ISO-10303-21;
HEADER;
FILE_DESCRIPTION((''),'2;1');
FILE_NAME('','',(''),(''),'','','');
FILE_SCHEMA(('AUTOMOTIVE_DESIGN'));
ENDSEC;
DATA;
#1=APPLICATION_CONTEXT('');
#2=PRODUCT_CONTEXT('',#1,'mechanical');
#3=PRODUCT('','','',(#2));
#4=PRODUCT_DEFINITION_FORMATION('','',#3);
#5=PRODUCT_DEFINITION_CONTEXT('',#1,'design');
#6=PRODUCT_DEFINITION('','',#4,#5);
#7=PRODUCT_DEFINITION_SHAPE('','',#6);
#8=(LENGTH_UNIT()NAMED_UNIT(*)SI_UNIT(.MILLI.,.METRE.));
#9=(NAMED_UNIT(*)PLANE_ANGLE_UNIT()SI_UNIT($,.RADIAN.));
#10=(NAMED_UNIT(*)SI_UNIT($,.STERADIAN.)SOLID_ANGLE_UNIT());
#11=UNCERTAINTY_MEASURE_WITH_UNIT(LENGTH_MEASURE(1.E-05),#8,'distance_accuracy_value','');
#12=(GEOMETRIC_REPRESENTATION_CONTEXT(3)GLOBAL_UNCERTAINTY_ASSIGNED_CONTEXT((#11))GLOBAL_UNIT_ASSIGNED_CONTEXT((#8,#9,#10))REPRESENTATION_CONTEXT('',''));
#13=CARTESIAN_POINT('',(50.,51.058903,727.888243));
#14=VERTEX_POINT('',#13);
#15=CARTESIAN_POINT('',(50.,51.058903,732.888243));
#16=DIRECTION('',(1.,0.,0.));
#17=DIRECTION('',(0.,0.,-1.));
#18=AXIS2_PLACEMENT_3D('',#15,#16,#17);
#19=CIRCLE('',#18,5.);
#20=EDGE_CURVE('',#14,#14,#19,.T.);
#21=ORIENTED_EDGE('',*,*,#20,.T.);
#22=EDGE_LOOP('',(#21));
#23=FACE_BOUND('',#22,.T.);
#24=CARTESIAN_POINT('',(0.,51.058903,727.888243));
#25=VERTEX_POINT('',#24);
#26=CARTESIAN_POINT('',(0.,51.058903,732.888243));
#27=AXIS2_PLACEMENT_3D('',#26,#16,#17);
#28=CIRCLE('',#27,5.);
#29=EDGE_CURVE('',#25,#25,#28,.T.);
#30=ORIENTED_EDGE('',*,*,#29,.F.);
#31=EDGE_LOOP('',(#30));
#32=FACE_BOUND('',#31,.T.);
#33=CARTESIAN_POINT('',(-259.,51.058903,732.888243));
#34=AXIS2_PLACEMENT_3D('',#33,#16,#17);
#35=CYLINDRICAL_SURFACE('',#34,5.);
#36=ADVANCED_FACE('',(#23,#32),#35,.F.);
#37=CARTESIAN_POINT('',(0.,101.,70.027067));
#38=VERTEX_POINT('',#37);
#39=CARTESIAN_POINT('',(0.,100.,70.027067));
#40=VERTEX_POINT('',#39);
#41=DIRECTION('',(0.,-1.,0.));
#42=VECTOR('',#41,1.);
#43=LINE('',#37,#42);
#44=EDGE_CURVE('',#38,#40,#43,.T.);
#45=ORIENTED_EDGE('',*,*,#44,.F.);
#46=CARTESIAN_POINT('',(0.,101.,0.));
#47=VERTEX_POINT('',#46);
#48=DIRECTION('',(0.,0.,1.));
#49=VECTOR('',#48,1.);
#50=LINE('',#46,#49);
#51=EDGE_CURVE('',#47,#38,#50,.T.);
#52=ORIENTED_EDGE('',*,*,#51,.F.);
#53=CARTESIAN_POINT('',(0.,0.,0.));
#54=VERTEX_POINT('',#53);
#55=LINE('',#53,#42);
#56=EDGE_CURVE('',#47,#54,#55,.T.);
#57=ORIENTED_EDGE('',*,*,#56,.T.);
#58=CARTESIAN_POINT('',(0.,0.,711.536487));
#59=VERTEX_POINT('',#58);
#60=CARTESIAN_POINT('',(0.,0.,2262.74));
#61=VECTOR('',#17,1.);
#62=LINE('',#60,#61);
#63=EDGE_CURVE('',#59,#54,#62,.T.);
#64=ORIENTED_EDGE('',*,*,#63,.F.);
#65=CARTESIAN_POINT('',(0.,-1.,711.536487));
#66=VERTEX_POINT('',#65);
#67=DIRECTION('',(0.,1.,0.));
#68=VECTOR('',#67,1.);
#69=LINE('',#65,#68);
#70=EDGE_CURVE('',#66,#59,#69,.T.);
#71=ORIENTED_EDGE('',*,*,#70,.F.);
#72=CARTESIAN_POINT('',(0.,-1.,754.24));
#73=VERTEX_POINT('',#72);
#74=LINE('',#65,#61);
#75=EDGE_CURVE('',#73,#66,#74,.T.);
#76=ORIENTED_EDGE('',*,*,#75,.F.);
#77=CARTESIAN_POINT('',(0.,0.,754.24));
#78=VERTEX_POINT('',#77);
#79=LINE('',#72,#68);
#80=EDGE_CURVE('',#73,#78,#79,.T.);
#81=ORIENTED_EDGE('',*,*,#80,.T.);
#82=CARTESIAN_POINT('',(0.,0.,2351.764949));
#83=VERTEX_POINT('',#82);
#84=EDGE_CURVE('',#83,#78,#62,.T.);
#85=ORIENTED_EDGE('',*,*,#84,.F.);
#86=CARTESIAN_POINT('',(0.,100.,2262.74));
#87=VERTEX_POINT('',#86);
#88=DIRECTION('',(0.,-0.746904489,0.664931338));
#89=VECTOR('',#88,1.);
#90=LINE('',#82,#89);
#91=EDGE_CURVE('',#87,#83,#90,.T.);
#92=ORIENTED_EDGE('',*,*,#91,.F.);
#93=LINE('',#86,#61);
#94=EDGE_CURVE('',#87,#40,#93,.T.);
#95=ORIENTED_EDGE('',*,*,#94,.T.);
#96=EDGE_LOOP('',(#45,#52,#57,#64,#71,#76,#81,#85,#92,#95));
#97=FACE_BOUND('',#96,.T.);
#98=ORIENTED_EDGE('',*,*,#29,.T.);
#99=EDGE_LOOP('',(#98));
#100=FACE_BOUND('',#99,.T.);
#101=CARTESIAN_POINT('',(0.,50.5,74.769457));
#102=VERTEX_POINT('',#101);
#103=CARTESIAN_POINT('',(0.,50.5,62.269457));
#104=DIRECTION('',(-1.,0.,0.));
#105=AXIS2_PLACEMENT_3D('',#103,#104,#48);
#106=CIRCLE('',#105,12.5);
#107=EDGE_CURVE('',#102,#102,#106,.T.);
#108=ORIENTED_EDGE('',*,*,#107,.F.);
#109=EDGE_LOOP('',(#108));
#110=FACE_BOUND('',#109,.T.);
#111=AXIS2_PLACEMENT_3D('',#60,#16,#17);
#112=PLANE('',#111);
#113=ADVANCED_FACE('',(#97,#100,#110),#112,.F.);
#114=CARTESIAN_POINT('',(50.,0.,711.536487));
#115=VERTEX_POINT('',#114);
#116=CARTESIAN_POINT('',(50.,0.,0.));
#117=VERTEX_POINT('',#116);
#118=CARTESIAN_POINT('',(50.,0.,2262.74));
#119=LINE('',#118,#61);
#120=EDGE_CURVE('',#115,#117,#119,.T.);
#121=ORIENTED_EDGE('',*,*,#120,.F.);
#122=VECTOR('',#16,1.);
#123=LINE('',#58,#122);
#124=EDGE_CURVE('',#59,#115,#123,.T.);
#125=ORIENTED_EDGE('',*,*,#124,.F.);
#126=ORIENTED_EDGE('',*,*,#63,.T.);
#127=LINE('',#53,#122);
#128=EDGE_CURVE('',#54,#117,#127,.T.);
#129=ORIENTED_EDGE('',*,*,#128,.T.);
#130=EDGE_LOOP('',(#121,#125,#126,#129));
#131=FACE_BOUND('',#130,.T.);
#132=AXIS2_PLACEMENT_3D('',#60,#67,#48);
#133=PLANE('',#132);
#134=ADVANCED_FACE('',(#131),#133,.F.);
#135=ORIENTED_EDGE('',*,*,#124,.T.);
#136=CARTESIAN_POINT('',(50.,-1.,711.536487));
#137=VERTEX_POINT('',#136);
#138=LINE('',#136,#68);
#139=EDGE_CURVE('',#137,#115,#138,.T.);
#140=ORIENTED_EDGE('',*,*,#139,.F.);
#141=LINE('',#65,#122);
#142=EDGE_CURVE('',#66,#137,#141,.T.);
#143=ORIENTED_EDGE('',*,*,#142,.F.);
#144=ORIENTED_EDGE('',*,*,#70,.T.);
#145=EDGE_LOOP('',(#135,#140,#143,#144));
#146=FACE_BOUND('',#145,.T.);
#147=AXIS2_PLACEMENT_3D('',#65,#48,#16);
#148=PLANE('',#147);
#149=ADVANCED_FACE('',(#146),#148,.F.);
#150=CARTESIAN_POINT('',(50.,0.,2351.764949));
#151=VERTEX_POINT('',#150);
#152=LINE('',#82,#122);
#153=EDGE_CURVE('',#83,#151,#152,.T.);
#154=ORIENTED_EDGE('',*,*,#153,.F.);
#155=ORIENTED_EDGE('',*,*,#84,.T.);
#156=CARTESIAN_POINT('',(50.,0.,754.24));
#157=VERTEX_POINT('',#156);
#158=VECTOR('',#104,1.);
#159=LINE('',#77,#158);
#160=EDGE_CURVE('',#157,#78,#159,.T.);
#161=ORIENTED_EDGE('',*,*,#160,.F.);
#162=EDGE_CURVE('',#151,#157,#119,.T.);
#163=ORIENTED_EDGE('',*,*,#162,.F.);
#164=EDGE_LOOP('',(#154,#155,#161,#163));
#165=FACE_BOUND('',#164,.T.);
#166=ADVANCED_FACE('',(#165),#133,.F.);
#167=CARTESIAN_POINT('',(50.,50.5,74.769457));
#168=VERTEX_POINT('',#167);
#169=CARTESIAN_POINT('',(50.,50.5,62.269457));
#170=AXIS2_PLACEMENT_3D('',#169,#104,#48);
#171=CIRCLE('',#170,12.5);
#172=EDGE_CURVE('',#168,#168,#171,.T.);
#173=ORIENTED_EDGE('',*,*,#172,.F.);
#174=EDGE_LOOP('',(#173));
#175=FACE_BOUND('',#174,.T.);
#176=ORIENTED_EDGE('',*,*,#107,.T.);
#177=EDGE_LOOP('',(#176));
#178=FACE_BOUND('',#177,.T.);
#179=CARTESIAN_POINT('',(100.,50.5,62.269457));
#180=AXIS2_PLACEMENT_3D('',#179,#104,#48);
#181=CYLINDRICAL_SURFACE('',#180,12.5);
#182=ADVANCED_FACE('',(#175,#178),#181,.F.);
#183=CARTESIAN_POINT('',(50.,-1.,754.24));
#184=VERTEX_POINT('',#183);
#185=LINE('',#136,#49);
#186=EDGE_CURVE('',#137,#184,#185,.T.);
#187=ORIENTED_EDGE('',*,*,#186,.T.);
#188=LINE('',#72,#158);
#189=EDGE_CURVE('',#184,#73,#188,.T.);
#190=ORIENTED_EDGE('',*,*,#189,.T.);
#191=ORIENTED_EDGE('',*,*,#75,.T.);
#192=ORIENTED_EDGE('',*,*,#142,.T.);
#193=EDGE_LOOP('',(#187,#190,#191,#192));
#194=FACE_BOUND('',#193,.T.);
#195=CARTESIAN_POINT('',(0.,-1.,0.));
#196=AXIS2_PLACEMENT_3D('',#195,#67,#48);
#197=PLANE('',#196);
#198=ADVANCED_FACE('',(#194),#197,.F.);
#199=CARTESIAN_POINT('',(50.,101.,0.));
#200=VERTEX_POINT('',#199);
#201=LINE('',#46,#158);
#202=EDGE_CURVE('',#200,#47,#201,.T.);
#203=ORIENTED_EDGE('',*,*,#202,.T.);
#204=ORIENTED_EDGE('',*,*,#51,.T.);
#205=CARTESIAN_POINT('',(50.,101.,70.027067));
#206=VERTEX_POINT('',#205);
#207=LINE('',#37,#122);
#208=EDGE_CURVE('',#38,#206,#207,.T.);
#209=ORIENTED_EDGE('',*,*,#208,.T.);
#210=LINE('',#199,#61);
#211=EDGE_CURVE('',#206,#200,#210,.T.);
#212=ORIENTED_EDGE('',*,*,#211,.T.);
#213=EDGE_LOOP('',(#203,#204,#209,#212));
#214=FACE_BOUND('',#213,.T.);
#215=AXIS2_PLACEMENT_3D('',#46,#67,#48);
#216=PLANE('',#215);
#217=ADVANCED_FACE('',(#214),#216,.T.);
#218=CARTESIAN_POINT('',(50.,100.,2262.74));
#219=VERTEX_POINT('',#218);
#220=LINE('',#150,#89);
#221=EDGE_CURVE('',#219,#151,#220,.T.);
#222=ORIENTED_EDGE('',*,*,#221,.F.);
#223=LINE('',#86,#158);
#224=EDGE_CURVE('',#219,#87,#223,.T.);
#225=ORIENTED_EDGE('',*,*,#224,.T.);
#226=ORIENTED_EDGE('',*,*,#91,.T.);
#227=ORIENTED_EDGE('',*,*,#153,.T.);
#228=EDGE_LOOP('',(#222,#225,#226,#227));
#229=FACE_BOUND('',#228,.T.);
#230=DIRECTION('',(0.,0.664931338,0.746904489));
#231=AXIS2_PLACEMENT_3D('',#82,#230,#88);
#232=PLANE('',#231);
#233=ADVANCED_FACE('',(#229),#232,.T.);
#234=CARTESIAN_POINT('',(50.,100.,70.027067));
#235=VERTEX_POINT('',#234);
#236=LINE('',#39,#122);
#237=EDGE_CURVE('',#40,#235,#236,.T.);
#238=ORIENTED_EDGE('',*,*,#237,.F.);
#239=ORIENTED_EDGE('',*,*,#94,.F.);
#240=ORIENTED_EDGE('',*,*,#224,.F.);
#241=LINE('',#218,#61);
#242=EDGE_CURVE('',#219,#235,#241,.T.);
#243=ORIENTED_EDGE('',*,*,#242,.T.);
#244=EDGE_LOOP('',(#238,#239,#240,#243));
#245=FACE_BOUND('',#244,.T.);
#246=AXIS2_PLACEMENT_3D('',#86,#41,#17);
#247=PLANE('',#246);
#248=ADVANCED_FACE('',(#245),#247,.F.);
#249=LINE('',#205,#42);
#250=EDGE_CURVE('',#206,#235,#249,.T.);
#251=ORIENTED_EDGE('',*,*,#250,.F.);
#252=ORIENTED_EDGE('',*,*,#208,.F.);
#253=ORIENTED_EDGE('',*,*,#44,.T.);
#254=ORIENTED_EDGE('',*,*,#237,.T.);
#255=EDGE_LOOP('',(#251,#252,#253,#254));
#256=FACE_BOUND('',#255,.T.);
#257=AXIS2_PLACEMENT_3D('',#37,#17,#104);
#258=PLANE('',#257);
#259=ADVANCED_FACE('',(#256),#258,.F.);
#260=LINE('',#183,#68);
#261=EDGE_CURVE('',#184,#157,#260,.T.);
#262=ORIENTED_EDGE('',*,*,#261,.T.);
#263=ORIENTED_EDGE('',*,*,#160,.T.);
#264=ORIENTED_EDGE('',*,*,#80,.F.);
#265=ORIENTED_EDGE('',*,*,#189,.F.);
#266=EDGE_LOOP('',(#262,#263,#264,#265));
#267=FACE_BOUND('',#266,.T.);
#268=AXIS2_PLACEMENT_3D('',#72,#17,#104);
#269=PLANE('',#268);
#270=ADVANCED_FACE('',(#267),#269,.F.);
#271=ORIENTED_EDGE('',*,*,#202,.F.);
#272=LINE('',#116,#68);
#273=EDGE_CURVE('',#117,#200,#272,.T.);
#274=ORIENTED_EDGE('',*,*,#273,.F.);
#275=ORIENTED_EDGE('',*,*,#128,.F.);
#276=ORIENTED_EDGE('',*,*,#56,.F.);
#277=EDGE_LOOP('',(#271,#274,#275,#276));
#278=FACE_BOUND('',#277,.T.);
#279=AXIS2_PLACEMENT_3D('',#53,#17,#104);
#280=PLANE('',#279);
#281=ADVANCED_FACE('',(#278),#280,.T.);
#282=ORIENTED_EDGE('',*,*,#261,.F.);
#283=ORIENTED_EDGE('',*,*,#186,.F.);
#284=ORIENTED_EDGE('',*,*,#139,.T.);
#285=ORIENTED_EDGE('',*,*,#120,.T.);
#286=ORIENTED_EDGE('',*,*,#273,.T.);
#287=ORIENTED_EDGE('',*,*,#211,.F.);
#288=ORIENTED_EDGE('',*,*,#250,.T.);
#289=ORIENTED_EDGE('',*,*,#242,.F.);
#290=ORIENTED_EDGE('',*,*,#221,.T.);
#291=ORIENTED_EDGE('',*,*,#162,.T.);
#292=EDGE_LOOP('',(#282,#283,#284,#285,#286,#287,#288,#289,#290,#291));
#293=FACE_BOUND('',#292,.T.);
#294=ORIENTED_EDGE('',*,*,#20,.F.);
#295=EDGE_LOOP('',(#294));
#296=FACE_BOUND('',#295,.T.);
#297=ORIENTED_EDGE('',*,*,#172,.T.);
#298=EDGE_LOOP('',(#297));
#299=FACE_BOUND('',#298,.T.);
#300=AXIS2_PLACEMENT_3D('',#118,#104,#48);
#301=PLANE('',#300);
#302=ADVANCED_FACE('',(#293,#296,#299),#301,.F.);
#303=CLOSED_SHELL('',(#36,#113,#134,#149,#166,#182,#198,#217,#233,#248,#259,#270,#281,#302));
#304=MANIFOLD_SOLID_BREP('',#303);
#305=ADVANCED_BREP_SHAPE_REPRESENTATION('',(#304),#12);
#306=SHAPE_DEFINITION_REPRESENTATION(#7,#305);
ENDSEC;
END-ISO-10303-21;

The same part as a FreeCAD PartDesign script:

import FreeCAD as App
import Part
import Sketcher
Q = App.Units.Quantity


def add_polygon(sketch, points):
    """Adds a closed chain of lines whose ends are joined by coincident constraints."""
    first, n = sketch.GeometryCount, len(points)
    for a, b in zip(points, points[1:] + points[:1]):
        sketch.addGeometry(Part.LineSegment(App.Vector(*a, 0), App.Vector(*b, 0)), False)
    for i in range(n):
        sketch.addConstraint(Sketcher.Constraint("Coincident", first + i, 2, first + (i + 1) % n, 1))

doc = App.newDocument("Part")
params = doc.addObject("Spreadsheet::Sheet", "Params")
for row, (alias, value) in enumerate([
    ("sketch1_width", "50 mm"),
    ("sketch1_height", "100 mm"),
    ("pad1_length", "2262.74 mm"),
    ("sketch2_width", "50 mm"),
    ("pad2_length", "1 mm"),
    ("sketch3_width", "50 mm"),
    ("pad3_length", "1 mm"),
    ("sketch4_diameter", "10 mm"),
    ("pocket1_length", "309 mm"),
    ("sketch5_diameter", "25 mm"),
    ("pocket2_length", "100 mm"),
    ("sketch6_width", "100 mm"),
    ("pad4_length", "50 mm"),
], start=1):
    params.set(f"A{row}", alias)
    params.set(f"B{row}", "=" + value)
    params.setAlias(f"B{row}", alias)

body = doc.addObject("PartDesign::Body", "Body")

sketch1 = body.newObject("Sketcher::SketchObject", "Sketch")
sketch1.AttachmentSupport = (doc.getObject("XY_Plane"), [""])
sketch1.MapMode = "FlatFace"
add_polygon(sketch1, [(0, 100), (0, 0), (50, 0), (50, 100)])
sketch1.addConstraint([
    Sketcher.Constraint("Vertical", 0),
    Sketcher.Constraint("Horizontal", 1),
    Sketcher.Constraint("Vertical", 2),
    Sketcher.Constraint("Horizontal", 3),
    Sketcher.Constraint("Coincident", 0, 2, -1, 1),
    Sketcher.Constraint("DistanceX", 1, 1, 1, 2, Q("50 mm")),
    Sketcher.Constraint("DistanceY", 0, 2, 0, 1, Q("100 mm")),
])
sketch1.setExpression("Constraints[9]", "Params.sketch1_width")
sketch1.setExpression("Constraints[10]", "Params.sketch1_height")
pad1 = body.newObject("PartDesign::Pad", "Pad")
pad1.Profile = sketch1
pad1.setExpression("Length", "Params.pad1_length")

sketch2 = body.newObject("Sketcher::SketchObject", "Sketch001")
sketch2.AttachmentSupport = (doc.getObject("XZ_Plane"), [""])
sketch2.MapMode = "FlatFace"
sketch2.AttachmentOffset = App.Placement(App.Vector(0, 0, -100), App.Rotation())
add_polygon(sketch2, [(0, 0), (0, 70), (50, 70), (50, 0)])
sketch2.addConstraint([
    Sketcher.Constraint("Vertical", 0),
    Sketcher.Constraint("Horizontal", 1),
    Sketcher.Constraint("Vertical", 2),
    Sketcher.Constraint("Horizontal", 3),
    Sketcher.Constraint("Coincident", 3, 2, -1, 1),
    Sketcher.Constraint("DistanceX", 1, 1, 1, 2, Q("50 mm")),
    Sketcher.Constraint("DistanceY", 0, 1, 0, 2, Q("70.027067 mm")),
])
sketch2.setExpression("Constraints[9]", "Params.sketch2_width")
pad2 = body.newObject("PartDesign::Pad", "Pad001")
pad2.Profile = sketch2
pad2.setExpression("Length", "Params.pad2_length")
pad2.Reversed = True

sketch3 = body.newObject("Sketcher::SketchObject", "Sketch002")
sketch3.AttachmentSupport = (doc.getObject("XZ_Plane"), [""])
sketch3.MapMode = "FlatFace"
add_polygon(sketch3, [(0, 754), (0, 712), (50, 712), (50, 754)])
sketch3.addConstraint([
    Sketcher.Constraint("Vertical", 0),
    Sketcher.Constraint("Horizontal", 1),
    Sketcher.Constraint("Vertical", 2),
    Sketcher.Constraint("Horizontal", 3),
    Sketcher.Constraint("PointOnObject", 0, 2, -2),
    Sketcher.Constraint("DistanceX", 1, 1, 1, 2, Q("50 mm")),
    Sketcher.Constraint("DistanceY", -1, 1, 2, 2, Q("754.24 mm")),
    Sketcher.Constraint("DistanceY", 0, 2, 0, 1, Q("42.703513 mm")),
])
sketch3.setExpression("Constraints[9]", "Params.sketch3_width")
pad3 = body.newObject("PartDesign::Pad", "Pad002")
pad3.Profile = sketch3
pad3.setExpression("Length", "Params.pad3_length")

sketch4 = body.newObject("Sketcher::SketchObject", "Sketch003")
sketch4.AttachmentSupport = (doc.getObject("YZ_Plane"), [""])
sketch4.MapMode = "FlatFace"
sketch4.AttachmentOffset = App.Placement(App.Vector(0, 0, 50), App.Rotation())
sketch4.addGeometry(Part.Circle(App.Vector(51, 733, 0), App.Vector(0, 0, 1), 5), False)
sketch4.addConstraint([
    Sketcher.Constraint("Diameter", 0, Q("10 mm")),
    Sketcher.Constraint("DistanceX", -1, 1, 0, 3, Q("51.058903 mm")),
    Sketcher.Constraint("DistanceY", -1, 1, 0, 3, Q("732.888243 mm")),
])
sketch4.setExpression("Constraints[0]", "Params.sketch4_diameter")
pocket1 = body.newObject("PartDesign::Pocket", "Pocket")
pocket1.Profile = sketch4
pocket1.setExpression("Length", "Params.pocket1_length")

sketch5 = body.newObject("Sketcher::SketchObject", "Sketch004")
sketch5.AttachmentSupport = (doc.getObject("YZ_Plane"), [""])
sketch5.MapMode = "FlatFace"
sketch5.addGeometry(Part.Circle(App.Vector(50, 62, 0), App.Vector(0, 0, 1), 12), False)
sketch5.addConstraint([
    Sketcher.Constraint("Diameter", 0, Q("25 mm")),
    Sketcher.Constraint("DistanceX", -1, 1, 0, 3, Q("50.5 mm")),
    Sketcher.Constraint("DistanceY", -1, 1, 0, 3, Q("62.269457 mm")),
])
sketch5.setExpression("Constraints[0]", "Params.sketch5_diameter")
pocket2 = body.newObject("PartDesign::Pocket", "Pocket001")
pocket2.Profile = sketch5
pocket2.setExpression("Length", "Params.pocket2_length")
pocket2.Reversed = True

sketch6 = body.newObject("Sketcher::SketchObject", "Sketch005")
sketch6.AttachmentSupport = (doc.getObject("YZ_Plane"), [""])
sketch6.MapMode = "FlatFace"
sketch6.AttachmentOffset = App.Placement(App.Vector(0, 0, 50), App.Rotation())
add_polygon(sketch6, [(0, 2352), (0, 2263), (100, 2263)])
sketch6.addConstraint([
    Sketcher.Constraint("Vertical", 0),
    Sketcher.Constraint("Horizontal", 1),
    Sketcher.Constraint("PointOnObject", 0, 2, -2),
    Sketcher.Constraint("DistanceX", 1, 1, 1, 2, Q("100 mm")),
    Sketcher.Constraint("DistanceY", -1, 1, 0, 2, Q("2262.74 mm")),
    Sketcher.Constraint("DistanceY", 0, 2, 0, 1, Q("89.024949 mm")),
])
sketch6.setExpression("Constraints[6]", "Params.sketch6_width")
pad4 = body.newObject("PartDesign::Pad", "Pad003")
pad4.Profile = sketch6
pad4.setExpression("Length", "Params.pad4_length")
pad4.Reversed = True

doc.recompute()
